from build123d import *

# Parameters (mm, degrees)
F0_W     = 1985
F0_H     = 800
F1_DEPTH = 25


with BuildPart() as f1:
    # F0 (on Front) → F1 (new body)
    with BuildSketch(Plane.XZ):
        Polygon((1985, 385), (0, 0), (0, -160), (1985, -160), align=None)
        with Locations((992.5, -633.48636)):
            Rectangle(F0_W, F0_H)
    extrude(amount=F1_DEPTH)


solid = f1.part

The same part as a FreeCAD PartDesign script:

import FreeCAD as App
import Part
import Sketcher

V = App.Vector

doc = App.newDocument("Part")
body = doc.addObject("PartDesign::Body", "Body")
body.AllowCompound = True

# Sketch on XZ plane
sketch1 = doc.addObject("Sketcher::SketchObject", "Sketch")
body.addObject(sketch1)
sketch1.AttachmentSupport = (doc.XZ_Plane, [""])
sketch1.MapMode = "FlatFace"
sketch1.addGeometry([
    Part.LineSegment(V(1985, 385, 0), V(0, 0, 0)),  # 0
    Part.LineSegment(V(0, 0, 0), V(0, -160, 0)),  # 1
    Part.LineSegment(V(0, -160, 0), V(1985, -160, 0)),  # 2
    Part.LineSegment(V(1985, -160, 0), V(1985, 385, 0)),  # 3
    Part.LineSegment(V(0, -233, 0), V(0, -1033, 0)),  # 4
    Part.LineSegment(V(0, -1033, 0), V(1985, -1033, 0)),  # 5
    Part.LineSegment(V(1985, -1033, 0), V(1985, -233, 0)),  # 6
    Part.LineSegment(V(1985, -233, 0), V(0, -233, 0)),  # 7
], False)
sketch1.addConstraint([
    Sketcher.Constraint("Coincident", 0, 2, 1, 1),
    Sketcher.Constraint("Coincident", 1, 2, 2, 1),
    Sketcher.Constraint("Coincident", 2, 2, 3, 1),
    Sketcher.Constraint("Coincident", 3, 2, 0, 1),
    Sketcher.Constraint("Coincident", 4, 2, 5, 1),
    Sketcher.Constraint("Coincident", 5, 2, 6, 1),
    Sketcher.Constraint("Coincident", 6, 2, 7, 1),
    Sketcher.Constraint("Coincident", 7, 2, 4, 1),
    Sketcher.Constraint("Vertical", 1),
    Sketcher.Constraint("Horizontal", 2),
    Sketcher.Constraint("Vertical", 3),
    Sketcher.Constraint("Vertical", 4),
    Sketcher.Constraint("Horizontal", 5),
    Sketcher.Constraint("Vertical", 6),
    Sketcher.Constraint("Horizontal", 7),
    Sketcher.Constraint("Coincident", 0, 2, -1, 1),
    Sketcher.Constraint("PointOnObject", 4, 2, -2),
    Sketcher.Constraint("Vertical", 3, 2, 5, 2),
    Sketcher.Constraint("DistanceX", 2, 1, 2, 2, 1985.0),
    Sketcher.Constraint("DistanceY", 1, 2, 1, 1, 160.0),
    Sketcher.Constraint("DistanceY", 3, 1, 3, 2, 545.0),
    Sketcher.Constraint("DistanceY", 4, 2, 4, 1, 800.0),
    Sketcher.Constraint("DistanceY", 4, 2, -1, 1, 1033.48636),
])
pad1 = doc.addObject("PartDesign::Pad", "Pad")
body.addObject(pad1)
pad1.Profile = sketch1
pad1.Length = 25

doc.recompute()
